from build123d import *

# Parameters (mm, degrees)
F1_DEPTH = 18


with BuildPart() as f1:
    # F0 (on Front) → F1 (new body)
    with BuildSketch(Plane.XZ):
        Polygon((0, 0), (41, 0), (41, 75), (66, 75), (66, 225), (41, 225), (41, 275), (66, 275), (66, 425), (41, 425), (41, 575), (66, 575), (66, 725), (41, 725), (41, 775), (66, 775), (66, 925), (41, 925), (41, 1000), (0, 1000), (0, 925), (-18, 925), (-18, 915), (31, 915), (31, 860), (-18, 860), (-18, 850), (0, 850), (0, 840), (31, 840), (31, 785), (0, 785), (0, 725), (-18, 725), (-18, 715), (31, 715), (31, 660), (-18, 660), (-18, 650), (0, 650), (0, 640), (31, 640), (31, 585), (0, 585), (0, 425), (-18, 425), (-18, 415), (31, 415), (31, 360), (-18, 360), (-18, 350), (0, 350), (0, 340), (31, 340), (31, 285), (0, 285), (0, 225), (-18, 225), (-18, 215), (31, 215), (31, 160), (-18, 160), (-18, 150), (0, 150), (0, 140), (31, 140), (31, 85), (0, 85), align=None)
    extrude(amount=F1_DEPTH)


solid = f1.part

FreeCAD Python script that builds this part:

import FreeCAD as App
import Part
import Sketcher
from FreeCAD import Vector
Q = App.Units.Quantity

doc = App.newDocument("Part")
params = doc.addObject("Spreadsheet::Sheet", "Params")
for row, (alias, value) in enumerate([
    ("sketch1_width", "41 mm"),
    ("sketch1_width2", "25 mm"),
    ("sketch1_width3", "18 mm"),
    ("sketch1_width4", "49 mm"),
    ("sketch1_height", "75 mm"),
    ("pad1_length", "18 mm"),
], start=1):
    params.set(f"A{row}", alias)
    params.set(f"B{row}", "=" + value)
    params.setAlias(f"B{row}", alias)

body = doc.addObject("PartDesign::Body", "Body")

# Sketch on XZ plane
sketch1 = doc.addObject("Sketcher::SketchObject", "Sketch")
body.addObject(sketch1)
sketch1.AttachmentSupport = (doc.XZ_Plane, [""])
sketch1.MapMode = "FlatFace"
sketch1.addGeometry(Part.LineSegment(Vector(0, 0, 0), Vector(41, 0, 0)), False)
sketch1.addGeometry(Part.LineSegment(Vector(41, 0, 0), Vector(41, 75, 0)), False)
sketch1.addGeometry(Part.LineSegment(Vector(41, 75, 0), Vector(66, 75, 0)), False)
sketch1.addGeometry(Part.LineSegment(Vector(66, 75, 0), Vector(66, 225, 0)), False)
sketch1.addGeometry(Part.LineSegment(Vector(66, 225, 0), Vector(41, 225, 0)), False)
sketch1.addGeometry(Part.LineSegment(Vector(41, 225, 0), Vector(41, 275, 0)), False)
sketch1.addGeometry(Part.LineSegment(Vector(41, 275, 0), Vector(66, 275, 0)), False)
sketch1.addGeometry(Part.LineSegment(Vector(66, 275, 0), Vector(66, 425, 0)), False)
sketch1.addGeometry(Part.LineSegment(Vector(66, 425, 0), Vector(41, 425, 0)), False)
sketch1.addGeometry(Part.LineSegment(Vector(41, 425, 0), Vector(41, 575, 0)), False)
sketch1.addGeometry(Part.LineSegment(Vector(41, 575, 0), Vector(66, 575, 0)), False)
sketch1.addGeometry(Part.LineSegment(Vector(66, 575, 0), Vector(66, 725, 0)), False)
sketch1.addGeometry(Part.LineSegment(Vector(66, 725, 0), Vector(41, 725, 0)), False)
sketch1.addGeometry(Part.LineSegment(Vector(41, 725, 0), Vector(41, 775, 0)), False)
sketch1.addGeometry(Part.LineSegment(Vector(41, 775, 0), Vector(66, 775, 0)), False)
sketch1.addGeometry(Part.LineSegment(Vector(66, 775, 0), Vector(66, 925, 0)), False)
sketch1.addGeometry(Part.LineSegment(Vector(66, 925, 0), Vector(41, 925, 0)), False)
sketch1.addGeometry(Part.LineSegment(Vector(41, 925, 0), Vector(41, 1000, 0)), False)
sketch1.addGeometry(Part.LineSegment(Vector(41, 1000, 0), Vector(0, 1000, 0)), False)
sketch1.addGeometry(Part.LineSegment(Vector(0, 1000, 0), Vector(0, 925, 0)), False)
sketch1.addGeometry(Part.LineSegment(Vector(0, 925, 0), Vector(-18, 925, 0)), False)
sketch1.addGeometry(Part.LineSegment(Vector(-18, 925, 0), Vector(-18, 915, 0)), False)
sketch1.addGeometry(Part.LineSegment(Vector(-18, 915, 0), Vector(31, 915, 0)), False)
sketch1.addGeometry(Part.LineSegment(Vector(31, 915, 0), Vector(31, 860, 0)), False)
sketch1.addGeometry(Part.LineSegment(Vector(31, 860, 0), Vector(-18, 860, 0)), False)
sketch1.addGeometry(Part.LineSegment(Vector(-18, 860, 0), Vector(-18, 850, 0)), False)
sketch1.addGeometry(Part.LineSegment(Vector(-18, 850, 0), Vector(0, 850, 0)), False)
sketch1.addGeometry(Part.LineSegment(Vector(0, 850, 0), Vector(0, 840, 0)), False)
sketch1.addGeometry(Part.LineSegment(Vector(0, 840, 0), Vector(31, 840, 0)), False)
sketch1.addGeometry(Part.LineSegment(Vector(31, 840, 0), Vector(31, 785, 0)), False)
sketch1.addGeometry(Part.LineSegment(Vector(31, 785, 0), Vector(0, 785, 0)), False)
sketch1.addGeometry(Part.LineSegment(Vector(0, 785, 0), Vector(0, 725, 0)), False)
sketch1.addGeometry(Part.LineSegment(Vector(0, 725, 0), Vector(-18, 725, 0)), False)
sketch1.addGeometry(Part.LineSegment(Vector(-18, 725, 0), Vector(-18, 715, 0)), False)
sketch1.addGeometry(Part.LineSegment(Vector(-18, 715, 0), Vector(31, 715, 0)), False)
sketch1.addGeometry(Part.LineSegment(Vector(31, 715, 0), Vector(31, 660, 0)), False)
sketch1.addGeometry(Part.LineSegment(Vector(31, 660, 0), Vector(-18, 660, 0)), False)
sketch1.addGeometry(Part.LineSegment(Vector(-18, 660, 0), Vector(-18, 650, 0)), False)
sketch1.addGeometry(Part.LineSegment(Vector(-18, 650, 0), Vector(0, 650, 0)), False)
sketch1.addGeometry(Part.LineSegment(Vector(0, 650, 0), Vector(0, 640, 0)), False)
sketch1.addGeometry(Part.LineSegment(Vector(0, 640, 0), Vector(31, 640, 0)), False)
sketch1.addGeometry(Part.LineSegment(Vector(31, 640, 0), Vector(31, 585, 0)), False)
sketch1.addGeometry(Part.LineSegment(Vector(31, 585, 0), Vector(0, 585, 0)), False)
sketch1.addGeometry(Part.LineSegment(Vector(0, 585, 0), Vector(0, 425, 0)), False)
sketch1.addGeometry(Part.LineSegment(Vector(0, 425, 0), Vector(-18, 425, 0)), False)
sketch1.addGeometry(Part.LineSegment(Vector(-18, 425, 0), Vector(-18, 415, 0)), False)
sketch1.addGeometry(Part.LineSegment(Vector(-18, 415, 0), Vector(31, 415, 0)), False)
sketch1.addGeometry(Part.LineSegment(Vector(31, 415, 0), Vector(31, 360, 0)), False)
sketch1.addGeometry(Part.LineSegment(Vector(31, 360, 0), Vector(-18, 360, 0)), False)
sketch1.addGeometry(Part.LineSegment(Vector(-18, 360, 0), Vector(-18, 350, 0)), False)
sketch1.addGeometry(Part.LineSegment(Vector(-18, 350, 0), Vector(0, 350, 0)), False)
sketch1.addGeometry(Part.LineSegment(Vector(0, 350, 0), Vector(0, 340, 0)), False)
sketch1.addGeometry(Part.LineSegment(Vector(0, 340, 0), Vector(31, 340, 0)), False)
sketch1.addGeometry(Part.LineSegment(Vector(31, 340, 0), Vector(31, 285, 0)), False)
sketch1.addGeometry(Part.LineSegment(Vector(31, 285, 0), Vector(0, 285, 0)), False)
sketch1.addGeometry(Part.LineSegment(Vector(0, 285, 0), Vector(0, 225, 0)), False)
sketch1.addGeometry(Part.LineSegment(Vector(0, 225, 0), Vector(-18, 225, 0)), False)
sketch1.addGeometry(Part.LineSegment(Vector(-18, 225, 0), Vector(-18, 215, 0)), False)
sketch1.addGeometry(Part.LineSegment(Vector(-18, 215, 0), Vector(31, 215, 0)), False)
sketch1.addGeometry(Part.LineSegment(Vector(31, 215, 0), Vector(31, 160, 0)), False)
sketch1.addGeometry(Part.LineSegment(Vector(31, 160, 0), Vector(-18, 160, 0)), False)
sketch1.addGeometry(Part.LineSegment(Vector(-18, 160, 0), Vector(-18, 150, 0)), False)
sketch1.addGeometry(Part.LineSegment(Vector(-18, 150, 0), Vector(0, 150, 0)), False)
sketch1.addGeometry(Part.LineSegment(Vector(0, 150, 0), Vector(0, 140, 0)), False)
sketch1.addGeometry(Part.LineSegment(Vector(0, 140, 0), Vector(31, 140, 0)), False)
sketch1.addGeometry(Part.LineSegment(Vector(31, 140, 0), Vector(31, 85, 0)), False)
sketch1.addGeometry(Part.LineSegment(Vector(31, 85, 0), Vector(0, 85, 0)), False)
sketch1.addGeometry(Part.LineSegment(Vector(0, 85, 0), Vector(0, 0, 0)), False)
sketch1.addConstraint(Sketcher.Constraint("Coincident", 0, 2, 1, 1))
sketch1.addConstraint(Sketcher.Constraint("Coincident", 1, 2, 2, 1))
sketch1.addConstraint(Sketcher.Constraint("Coincident", 2, 2, 3, 1))
sketch1.addConstraint(Sketcher.Constraint("Coincident", 3, 2, 4, 1))
sketch1.addConstraint(Sketcher.Constraint("Coincident", 4, 2, 5, 1))
sketch1.addConstraint(Sketcher.Constraint("Coincident", 5, 2, 6, 1))
sketch1.addConstraint(Sketcher.Constraint("Coincident", 6, 2, 7, 1))
sketch1.addConstraint(Sketcher.Constraint("Coincident", 7, 2, 8, 1))
sketch1.addConstraint(Sketcher.Constraint("Coincident", 8, 2, 9, 1))
sketch1.addConstraint(Sketcher.Constraint("Coincident", 9, 2, 10, 1))
sketch1.addConstraint(Sketcher.Constraint("Coincident", 10, 2, 11, 1))
sketch1.addConstraint(Sketcher.Constraint("Coincident", 11, 2, 12, 1))
sketch1.addConstraint(Sketcher.Constraint("Coincident", 12, 2, 13, 1))
sketch1.addConstraint(Sketcher.Constraint("Coincident", 13, 2, 14, 1))
sketch1.addConstraint(Sketcher.Constraint("Coincident", 14, 2, 15, 1))
sketch1.addConstraint(Sketcher.Constraint("Coincident", 15, 2, 16, 1))
sketch1.addConstraint(Sketcher.Constraint("Coincident", 16, 2, 17, 1))
sketch1.addConstraint(Sketcher.Constraint("Coincident", 17, 2, 18, 1))
sketch1.addConstraint(Sketcher.Constraint("Coincident", 18, 2, 19, 1))
sketch1.addConstraint(Sketcher.Constraint("Coincident", 19, 2, 20, 1))
sketch1.addConstraint(Sketcher.Constraint("Coincident", 20, 2, 21, 1))
sketch1.addConstraint(Sketcher.Constraint("Coincident", 21, 2, 22, 1))
sketch1.addConstraint(Sketcher.Constraint("Coincident", 22, 2, 23, 1))
sketch1.addConstraint(Sketcher.Constraint("Coincident", 23, 2, 24, 1))
sketch1.addConstraint(Sketcher.Constraint("Coincident", 24, 2, 25, 1))
sketch1.addConstraint(Sketcher.Constraint("Coincident", 25, 2, 26, 1))
sketch1.addConstraint(Sketcher.Constraint("Coincident", 26, 2, 27, 1))
sketch1.addConstraint(Sketcher.Constraint("Coincident", 27, 2, 28, 1))
sketch1.addConstraint(Sketcher.Constraint("Coincident", 28, 2, 29, 1))
sketch1.addConstraint(Sketcher.Constraint("Coincident", 29, 2, 30, 1))
sketch1.addConstraint(Sketcher.Constraint("Coincident", 30, 2, 31, 1))
sketch1.addConstraint(Sketcher.Constraint("Coincident", 31, 2, 32, 1))
sketch1.addConstraint(Sketcher.Constraint("Coincident", 32, 2, 33, 1))
sketch1.addConstraint(Sketcher.Constraint("Coincident", 33, 2, 34, 1))
sketch1.addConstraint(Sketcher.Constraint("Coincident", 34, 2, 35, 1))
sketch1.addConstraint(Sketcher.Constraint("Coincident", 35, 2, 36, 1))
sketch1.addConstraint(Sketcher.Constraint("Coincident", 36, 2, 37, 1))
sketch1.addConstraint(Sketcher.Constraint("Coincident", 37, 2, 38, 1))
sketch1.addConstraint(Sketcher.Constraint("Coincident", 38, 2, 39, 1))
sketch1.addConstraint(Sketcher.Constraint("Coincident", 39, 2, 40, 1))
sketch1.addConstraint(Sketcher.Constraint("Coincident", 40, 2, 41, 1))
sketch1.addConstraint(Sketcher.Constraint("Coincident", 41, 2, 42, 1))
sketch1.addConstraint(Sketcher.Constraint("Coincident", 42, 2, 43, 1))
sketch1.addConstraint(Sketcher.Constraint("Coincident", 43, 2, 44, 1))
sketch1.addConstraint(Sketcher.Constraint("Coincident", 44, 2, 45, 1))
sketch1.addConstraint(Sketcher.Constraint("Coincident", 45, 2, 46, 1))
sketch1.addConstraint(Sketcher.Constraint("Coincident", 46, 2, 47, 1))
sketch1.addConstraint(Sketcher.Constraint("Coincident", 47, 2, 48, 1))
sketch1.addConstraint(Sketcher.Constraint("Coincident", 48, 2, 49, 1))
sketch1.addConstraint(Sketcher.Constraint("Coincident", 49, 2, 50, 1))
sketch1.addConstraint(Sketcher.Constraint("Coincident", 50, 2, 51, 1))
sketch1.addConstraint(Sketcher.Constraint("Coincident", 51, 2, 52, 1))
sketch1.addConstraint(Sketcher.Constraint("Coincident", 52, 2, 53, 1))
sketch1.addConstraint(Sketcher.Constraint("Coincident", 53, 2, 54, 1))
sketch1.addConstraint(Sketcher.Constraint("Coincident", 54, 2, 55, 1))
sketch1.addConstraint(Sketcher.Constraint("Coincident", 55, 2, 56, 1))
sketch1.addConstraint(Sketcher.Constraint("Coincident", 56, 2, 57, 1))
sketch1.addConstraint(Sketcher.Constraint("Coincident", 57, 2, 58, 1))
sketch1.addConstraint(Sketcher.Constraint("Coincident", 58, 2, 59, 1))
sketch1.addConstraint(Sketcher.Constraint("Coincident", 59, 2, 60, 1))
sketch1.addConstraint(Sketcher.Constraint("Coincident", 60, 2, 61, 1))
sketch1.addConstraint(Sketcher.Constraint("Coincident", 61, 2, 62, 1))
sketch1.addConstraint(Sketcher.Constraint("Coincident", 62, 2, 63, 1))
sketch1.addConstraint(Sketcher.Constraint("Coincident", 63, 2, 64, 1))
sketch1.addConstraint(Sketcher.Constraint("Coincident", 64, 2, 65, 1))
sketch1.addConstraint(Sketcher.Constraint("Coincident", 65, 2, 66, 1))
sketch1.addConstraint(Sketcher.Constraint("Coincident", 66, 2, 67, 1))
sketch1.addConstraint(Sketcher.Constraint("Coincident", 67, 2, 0, 1))
sketch1.addConstraint(Sketcher.Constraint("Horizontal", 0))
sketch1.addConstraint(Sketcher.Constraint("Vertical", 1))
sketch1.addConstraint(Sketcher.Constraint("Horizontal", 2))
sketch1.addConstraint(Sketcher.Constraint("Vertical", 3))
sketch1.addConstraint(Sketcher.Constraint("Horizontal", 4))
sketch1.addConstraint(Sketcher.Constraint("Vertical", 5))
sketch1.addConstraint(Sketcher.Constraint("Horizontal", 6))
sketch1.addConstraint(Sketcher.Constraint("Vertical", 7))
sketch1.addConstraint(Sketcher.Constraint("Horizontal", 8))
sketch1.addConstraint(Sketcher.Constraint("Vertical", 9))
sketch1.addConstraint(Sketcher.Constraint("Horizontal", 10))
sketch1.addConstraint(Sketcher.Constraint("Vertical", 11))
sketch1.addConstraint(Sketcher.Constraint("Horizontal", 12))
sketch1.addConstraint(Sketcher.Constraint("Vertical", 13))
sketch1.addConstraint(Sketcher.Constraint("Horizontal", 14))
sketch1.addConstraint(Sketcher.Constraint("Vertical", 15))
sketch1.addConstraint(Sketcher.Constraint("Horizontal", 16))
sketch1.addConstraint(Sketcher.Constraint("Vertical", 17))
sketch1.addConstraint(Sketcher.Constraint("Horizontal", 18))
sketch1.addConstraint(Sketcher.Constraint("Vertical", 19))
sketch1.addConstraint(Sketcher.Constraint("Horizontal", 20))
sketch1.addConstraint(Sketcher.Constraint("Vertical", 21))
sketch1.addConstraint(Sketcher.Constraint("Horizontal", 22))
sketch1.addConstraint(Sketcher.Constraint("Vertical", 23))
sketch1.addConstraint(Sketcher.Constraint("Horizontal", 24))
sketch1.addConstraint(Sketcher.Constraint("Vertical", 25))
sketch1.addConstraint(Sketcher.Constraint("Horizontal", 26))
sketch1.addConstraint(Sketcher.Constraint("Vertical", 27))
sketch1.addConstraint(Sketcher.Constraint("Horizontal", 28))
sketch1.addConstraint(Sketcher.Constraint("Vertical", 29))
sketch1.addConstraint(Sketcher.Constraint("Horizontal", 30))
sketch1.addConstraint(Sketcher.Constraint("Vertical", 31))
sketch1.addConstraint(Sketcher.Constraint("Horizontal", 32))
sketch1.addConstraint(Sketcher.Constraint("Vertical", 33))
sketch1.addConstraint(Sketcher.Constraint("Horizontal", 34))
sketch1.addConstraint(Sketcher.Constraint("Vertical", 35))
sketch1.addConstraint(Sketcher.Constraint("Horizontal", 36))
sketch1.addConstraint(Sketcher.Constraint("Vertical", 37))
sketch1.addConstraint(Sketcher.Constraint("Horizontal", 38))
sketch1.addConstraint(Sketcher.Constraint("Vertical", 39))
sketch1.addConstraint(Sketcher.Constraint("Horizontal", 40))
sketch1.addConstraint(Sketcher.Constraint("Vertical", 41))
sketch1.addConstraint(Sketcher.Constraint("Horizontal", 42))
sketch1.addConstraint(Sketcher.Constraint("Vertical", 43))
sketch1.addConstraint(Sketcher.Constraint("Horizontal", 44))
sketch1.addConstraint(Sketcher.Constraint("Vertical", 45))
sketch1.addConstraint(Sketcher.Constraint("Horizontal", 46))
sketch1.addConstraint(Sketcher.Constraint("Vertical", 47))
sketch1.addConstraint(Sketcher.Constraint("Horizontal", 48))
sketch1.addConstraint(Sketcher.Constraint("Vertical", 49))
sketch1.addConstraint(Sketcher.Constraint("Horizontal", 50))
sketch1.addConstraint(Sketcher.Constraint("Vertical", 51))
sketch1.addConstraint(Sketcher.Constraint("Horizontal", 52))
sketch1.addConstraint(Sketcher.Constraint("Vertical", 53))
sketch1.addConstraint(Sketcher.Constraint("Horizontal", 54))
sketch1.addConstraint(Sketcher.Constraint("Vertical", 55))
sketch1.addConstraint(Sketcher.Constraint("Horizontal", 56))
sketch1.addConstraint(Sketcher.Constraint("Vertical", 57))
sketch1.addConstraint(Sketcher.Constraint("Horizontal", 58))
sketch1.addConstraint(Sketcher.Constraint("Vertical", 59))
sketch1.addConstraint(Sketcher.Constraint("Horizontal", 60))
sketch1.addConstraint(Sketcher.Constraint("Vertical", 61))
sketch1.addConstraint(Sketcher.Constraint("Horizontal", 62))
sketch1.addConstraint(Sketcher.Constraint("Vertical", 63))
sketch1.addConstraint(Sketcher.Constraint("Horizontal", 64))
sketch1.addConstraint(Sketcher.Constraint("Vertical", 65))
sketch1.addConstraint(Sketcher.Constraint("Horizontal", 66))
sketch1.addConstraint(Sketcher.Constraint("Vertical", 67))
sketch1.addConstraint(Sketcher.Constraint("Coincident", 67, 2, -1, 1))
sketch1.addConstraint(Sketcher.Constraint("PointOnObject", 18, 2, -2))
sketch1.addConstraint(Sketcher.Constraint("PointOnObject", 26, 2, -2))
sketch1.addConstraint(Sketcher.Constraint("PointOnObject", 30, 2, -2))
sketch1.addConstraint(Sketcher.Constraint("PointOnObject", 38, 2, -2))
sketch1.addConstraint(Sketcher.Constraint("PointOnObject", 42, 2, -2))
sketch1.addConstraint(Sketcher.Constraint("PointOnObject", 50, 2, -2))
sketch1.addConstraint(Sketcher.Constraint("PointOnObject", 54, 2, -2))
sketch1.addConstraint(Sketcher.Constraint("PointOnObject", 62, 2, -2))
sketch1.addConstraint(Sketcher.Constraint("Horizontal", 16, 2, 19, 2))
sketch1.addConstraint(Sketcher.Constraint("Horizontal", 12, 2, 31, 2))
sketch1.addConstraint(Sketcher.Constraint("Horizontal", 8, 2, 43, 2))
sketch1.addConstraint(Sketcher.Constraint("Horizontal", 4, 2, 55, 2))
sketch1.addConstraint(Sketcher.Constraint("Vertical", 1, 2, 4, 2))
sketch1.addConstraint(Sketcher.Constraint("Vertical", 3, 2, 6, 2))
sketch1.addConstraint(Sketcher.Constraint("Vertical", 5, 2, 8, 2))
sketch1.addConstraint(Sketcher.Constraint("Vertical", 7, 2, 10, 2))
sketch1.addConstraint(Sketcher.Constraint("Vertical", 9, 2, 12, 2))
sketch1.addConstraint(Sketcher.Constraint("Vertical", 11, 2, 14, 2))
sketch1.addConstraint(Sketcher.Constraint("Vertical", 13, 2, 16, 2))
sketch1.addConstraint(Sketcher.Constraint("Vertical", 21, 2, 24, 2))
sketch1.addConstraint(Sketcher.Constraint("Vertical", 23, 2, 28, 2))
sketch1.addConstraint(Sketcher.Constraint("Vertical", 25, 2, 32, 2))
sketch1.addConstraint(Sketcher.Constraint("Vertical", 29, 2, 34, 2))
sketch1.addConstraint(Sketcher.Constraint("Vertical", 33, 2, 36, 2))
sketch1.addConstraint(Sketcher.Constraint("Vertical", 35, 2, 40, 2))
sketch1.addConstraint(Sketcher.Constraint("Vertical", 37, 2, 44, 2))
sketch1.addConstraint(Sketcher.Constraint("Vertical", 41, 2, 46, 2))
sketch1.addConstraint(Sketcher.Constraint("Vertical", 45, 2, 48, 2))
sketch1.addConstraint(Sketcher.Constraint("Vertical", 47, 2, 52, 2))
sketch1.addConstraint(Sketcher.Constraint("Vertical", 49, 2, 56, 2))
sketch1.addConstraint(Sketcher.Constraint("Vertical", 53, 2, 58, 2))
sketch1.addConstraint(Sketcher.Constraint("Vertical", 57, 2, 60, 2))
sketch1.addConstraint(Sketcher.Constraint("Vertical", 59, 2, 64, 2))
sketch1.addConstraint(Sketcher.Constraint("Equal", 3, 7))
sketch1.addConstraint(Sketcher.Constraint("Equal", 7, 9))
sketch1.addConstraint(Sketcher.Constraint("Equal", 9, 11))
sketch1.addConstraint(Sketcher.Constraint("Equal", 5, 13))
sketch1.addConstraint(Sketcher.Constraint("Equal", 11, 15))
sketch1.addConstraint(Sketcher.Constraint("Equal", 1, 17))
sketch1.addConstraint(Sketcher.Constraint("Equal", 21, 25))
sketch1.addConstraint(Sketcher.Constraint("Equal", 25, 27))
sketch1.addConstraint(Sketcher.Constraint("Equal", 23, 29))
sketch1.addConstraint(Sketcher.Constraint("Equal", 27, 33))
sketch1.addConstraint(Sketcher.Constraint("Equal", 29, 35))
sketch1.addConstraint(Sketcher.Constraint("Equal", 33, 37))
sketch1.addConstraint(Sketcher.Constraint("Equal", 37, 39))
sketch1.addConstraint(Sketcher.Constraint("Equal", 35, 41))
sketch1.addConstraint(Sketcher.Constraint("Equal", 39, 45))
sketch1.addConstraint(Sketcher.Constraint("Equal", 41, 47))
sketch1.addConstraint(Sketcher.Constraint("Equal", 45, 49))
sketch1.addConstraint(Sketcher.Constraint("Equal", 49, 51))
sketch1.addConstraint(Sketcher.Constraint("Equal", 47, 53))
sketch1.addConstraint(Sketcher.Constraint("Equal", 51, 57))
sketch1.addConstraint(Sketcher.Constraint("Equal", 53, 59))
sketch1.addConstraint(Sketcher.Constraint("Equal", 57, 61))
sketch1.addConstraint(Sketcher.Constraint("Equal", 61, 63))
sketch1.addConstraint(Sketcher.Constraint("Equal", 59, 65))
sketch1.addConstraint(Sketcher.Constraint("DistanceX", 0, 1, 0, 2, Q("41 mm")))
sketch1.addConstraint(Sketcher.Constraint("DistanceX", 2, 1, 2, 2, Q("25 mm")))
sketch1.addConstraint(Sketcher.Constraint("DistanceX", 20, 2, 20, 1, Q("18 mm")))
sketch1.addConstraint(Sketcher.Constraint("DistanceX", 22, 1, 22, 2, Q("49 mm")))
sketch1.addConstraint(Sketcher.Constraint("DistanceY", 1, 1, 1, 2, Q("75 mm")))
sketch1.addConstraint(Sketcher.Constraint("DistanceY", 3, 1, 3, 2, Q("150 mm")))
sketch1.addConstraint(Sketcher.Constraint("DistanceY", 5, 1, 5, 2, Q("50 mm")))
sketch1.addConstraint(Sketcher.Constraint("DistanceY", 21, 2, 21, 1, Q("10 mm")))
sketch1.addConstraint(Sketcher.Constraint("DistanceY", 23, 2, 23, 1, Q("55 mm")))
sketch1.setExpression("Constraints[194]", "Params.sketch1_width")
sketch1.setExpression("Constraints[195]", "Params.sketch1_width2")
sketch1.setExpression("Constraints[196]", "Params.sketch1_width3")
sketch1.setExpression("Constraints[197]", "Params.sketch1_width4")
sketch1.setExpression("Constraints[198]", "Params.sketch1_height")
pad1 = doc.addObject("PartDesign::Pad", "Pad")
body.addObject(pad1)
pad1.Profile = sketch1
pad1.setExpression("Length", "Params.pad1_length")

doc.recompute()
